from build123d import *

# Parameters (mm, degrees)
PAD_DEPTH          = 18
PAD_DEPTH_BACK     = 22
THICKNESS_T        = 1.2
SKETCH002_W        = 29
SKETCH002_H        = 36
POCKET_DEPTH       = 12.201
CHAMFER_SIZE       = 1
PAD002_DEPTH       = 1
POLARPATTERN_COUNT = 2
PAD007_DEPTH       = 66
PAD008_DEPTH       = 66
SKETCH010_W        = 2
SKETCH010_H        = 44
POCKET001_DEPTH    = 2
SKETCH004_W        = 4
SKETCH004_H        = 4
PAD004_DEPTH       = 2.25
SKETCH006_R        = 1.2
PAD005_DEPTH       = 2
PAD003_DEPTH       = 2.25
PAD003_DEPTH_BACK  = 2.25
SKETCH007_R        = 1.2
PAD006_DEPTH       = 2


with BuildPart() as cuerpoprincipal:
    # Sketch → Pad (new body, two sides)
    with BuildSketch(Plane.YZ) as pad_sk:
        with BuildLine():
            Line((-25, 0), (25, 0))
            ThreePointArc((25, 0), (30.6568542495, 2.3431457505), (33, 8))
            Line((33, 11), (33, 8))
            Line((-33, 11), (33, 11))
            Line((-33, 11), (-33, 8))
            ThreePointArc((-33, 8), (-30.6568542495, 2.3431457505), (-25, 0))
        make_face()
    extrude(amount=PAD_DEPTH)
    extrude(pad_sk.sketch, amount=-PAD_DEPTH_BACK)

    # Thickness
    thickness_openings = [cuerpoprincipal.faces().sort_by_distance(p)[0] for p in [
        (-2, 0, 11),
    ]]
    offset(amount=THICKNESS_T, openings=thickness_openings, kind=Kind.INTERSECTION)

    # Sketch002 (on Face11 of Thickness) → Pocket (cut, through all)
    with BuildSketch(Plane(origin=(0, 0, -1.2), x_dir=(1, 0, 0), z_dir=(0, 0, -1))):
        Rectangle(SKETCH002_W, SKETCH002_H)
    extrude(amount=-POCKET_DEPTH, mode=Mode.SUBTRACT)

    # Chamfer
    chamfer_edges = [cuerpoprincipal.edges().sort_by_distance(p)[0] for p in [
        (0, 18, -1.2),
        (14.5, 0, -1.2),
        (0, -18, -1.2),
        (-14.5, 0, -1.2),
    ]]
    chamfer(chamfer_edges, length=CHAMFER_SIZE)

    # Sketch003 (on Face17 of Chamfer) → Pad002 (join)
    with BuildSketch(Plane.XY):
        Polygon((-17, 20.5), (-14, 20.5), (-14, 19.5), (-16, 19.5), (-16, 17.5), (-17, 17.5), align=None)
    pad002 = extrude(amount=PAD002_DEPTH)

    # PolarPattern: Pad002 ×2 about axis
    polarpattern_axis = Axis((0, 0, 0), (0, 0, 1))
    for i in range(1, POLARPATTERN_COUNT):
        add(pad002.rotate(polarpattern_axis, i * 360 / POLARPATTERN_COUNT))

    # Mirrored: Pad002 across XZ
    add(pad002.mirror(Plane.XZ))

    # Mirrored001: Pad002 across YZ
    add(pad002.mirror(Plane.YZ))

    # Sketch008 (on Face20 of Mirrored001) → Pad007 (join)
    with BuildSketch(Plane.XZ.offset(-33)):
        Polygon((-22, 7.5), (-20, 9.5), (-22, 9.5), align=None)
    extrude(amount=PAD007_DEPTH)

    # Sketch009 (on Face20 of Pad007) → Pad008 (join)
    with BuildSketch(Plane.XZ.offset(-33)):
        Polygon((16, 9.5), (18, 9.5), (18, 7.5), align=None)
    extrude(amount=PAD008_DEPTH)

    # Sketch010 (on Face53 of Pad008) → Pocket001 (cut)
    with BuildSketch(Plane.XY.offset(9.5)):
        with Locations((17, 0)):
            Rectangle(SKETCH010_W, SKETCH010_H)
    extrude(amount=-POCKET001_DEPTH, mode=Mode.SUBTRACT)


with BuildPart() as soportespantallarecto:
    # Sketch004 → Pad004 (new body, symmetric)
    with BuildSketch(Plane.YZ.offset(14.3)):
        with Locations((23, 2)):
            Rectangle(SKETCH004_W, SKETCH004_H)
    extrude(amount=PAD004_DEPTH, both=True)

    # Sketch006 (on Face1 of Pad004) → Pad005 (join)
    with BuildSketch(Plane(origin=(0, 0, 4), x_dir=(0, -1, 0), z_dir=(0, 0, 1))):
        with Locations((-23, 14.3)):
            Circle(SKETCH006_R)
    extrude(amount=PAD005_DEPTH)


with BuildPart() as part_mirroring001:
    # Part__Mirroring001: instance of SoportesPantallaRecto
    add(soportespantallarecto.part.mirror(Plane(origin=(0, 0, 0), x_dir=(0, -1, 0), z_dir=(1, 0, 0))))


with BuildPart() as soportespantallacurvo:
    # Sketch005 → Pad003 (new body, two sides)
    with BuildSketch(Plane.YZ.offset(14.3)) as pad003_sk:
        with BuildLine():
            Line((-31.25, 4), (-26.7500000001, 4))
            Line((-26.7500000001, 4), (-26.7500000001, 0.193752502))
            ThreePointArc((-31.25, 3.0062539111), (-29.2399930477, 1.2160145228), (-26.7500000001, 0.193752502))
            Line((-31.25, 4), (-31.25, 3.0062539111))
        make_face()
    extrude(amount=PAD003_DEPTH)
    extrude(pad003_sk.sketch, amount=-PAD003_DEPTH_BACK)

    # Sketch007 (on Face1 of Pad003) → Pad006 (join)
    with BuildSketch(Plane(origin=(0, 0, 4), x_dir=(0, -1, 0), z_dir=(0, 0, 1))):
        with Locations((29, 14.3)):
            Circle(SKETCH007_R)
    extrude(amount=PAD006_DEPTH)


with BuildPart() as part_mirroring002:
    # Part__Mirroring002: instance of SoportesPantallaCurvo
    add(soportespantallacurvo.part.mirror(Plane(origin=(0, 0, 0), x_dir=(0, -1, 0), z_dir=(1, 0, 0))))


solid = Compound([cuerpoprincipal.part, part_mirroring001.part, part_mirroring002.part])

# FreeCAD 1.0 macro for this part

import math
import FreeCAD as App
import Part
import Sketcher

V = App.Vector
Q = App.Units.Quantity


def edges_at(feature, points):
    """Names of the edges that pass closest to the given points."""
    edges = feature.Shape.Edges
    near = lambda p: min(range(len(edges)), key=lambda i: edges[i].distToShape(Part.Vertex(*p))[0])
    return sorted({f"Edge{near(p) + 1}" for p in points})


def faces_at(feature, points):
    """Names of the faces that lie closest to the given points."""
    faces = feature.Shape.Faces
    near = lambda p: min(range(len(faces)), key=lambda i: faces[i].distToShape(Part.Vertex(*p))[0])
    return sorted({f"Face{near(p) + 1}" for p in points})

doc = App.newDocument("Part")
body = doc.addObject("PartDesign::Body", "Body")

# Sketch on YZ plane
sketch1 = body.newObject("Sketcher::SketchObject", "Sketch")
sketch1.AttachmentSupport = (doc.getObject("YZ_Plane"), [""])
sketch1.MapMode = "FlatFace"
sketch1.addGeometry([
    Part.LineSegment(V(-25, 0, 0), V(25, 0, 0)),  # 0
    Part.ArcOfCircle(Part.Circle(V(25, 8, 0), V(0, 0, 1), 8), math.radians(-90), math.radians(0)),  # 1
    Part.LineSegment(V(33, 8, 0), V(33, 11, 0)),  # 2
    Part.LineSegment(V(33, 11, 0), V(-33, 11, 0)),  # 3
    Part.LineSegment(V(-33, 11, 0), V(-33, 8, 0)),  # 4
    Part.ArcOfCircle(Part.Circle(V(-25, 8, 0), V(0, 0, 1), 8), math.radians(180), math.radians(270)),  # 5
], False)
sketch1.addConstraint([
    Sketcher.Constraint("Tangent", 0, 2, 1, 1),
    Sketcher.Constraint("Tangent", 1, 2, 2, 1),
    Sketcher.Constraint("Coincident", 2, 2, 3, 1),
    Sketcher.Constraint("Coincident", 3, 2, 4, 1),
    Sketcher.Constraint("Tangent", 4, 2, 5, 1),
    Sketcher.Constraint("Tangent", 5, 2, 0, 1),
    Sketcher.Constraint("Horizontal", 0),
    Sketcher.Constraint("Vertical", 2),
    Sketcher.Constraint("Horizontal", 3),
    Sketcher.Constraint("Vertical", 4),
    Sketcher.Constraint("Equal", 1, 5),
    Sketcher.Constraint("Symmetric", 0, 2, 5, 2, -1, 1),
    Sketcher.Constraint("Radius", 1, Q("8 mm")),
    Sketcher.Constraint("DistanceX", 0, 1, 0, 2, Q("50 mm")),
    Sketcher.Constraint("DistanceY", 2, 1, 2, 2, Q("3 mm")),
])
pad1 = body.newObject("PartDesign::Pad", "Pad")
pad1.Profile = sketch1
pad1.Type = "TwoLengths"
pad1.Length = 18
pad1.Length2 = 22
doc.recompute()

thickness = body.newObject("PartDesign::Thickness", "Thickness")
thickness.Base = (pad1, faces_at(pad1, [(-2, 0, 11)]))
thickness.Value = 1.2
thickness.Reversed = False
thickness.Join = "Intersection"

# Sketch on XY plane
sketch2 = body.newObject("Sketcher::SketchObject", "Sketch001")
sketch2.AttachmentSupport = (doc.getObject("XY_Plane"), [""])
sketch2.MapMode = "FlatFace"
sketch2.AttachmentOffset = App.Placement(V(0, 0, -1.2), App.Rotation())
sketch2.addGeometry([
    Part.LineSegment(V(-14, -18, 0), V(-14, 18, 0)),
    Part.LineSegment(V(-14, 18, 0), V(14, 18, 0)),
    Part.LineSegment(V(14, 18, 0), V(14, -18, 0)),
    Part.LineSegment(V(14, -18, 0), V(-14, -18, 0)),
], False)
sketch2.addConstraint([
    Sketcher.Constraint("Coincident", 0, 2, 1, 1),
    Sketcher.Constraint("Coincident", 1, 2, 2, 1),
    Sketcher.Constraint("Coincident", 2, 2, 3, 1),
    Sketcher.Constraint("Coincident", 3, 2, 0, 1),
    Sketcher.Constraint("Vertical", 0),
    Sketcher.Constraint("Horizontal", 1),
    Sketcher.Constraint("Vertical", 2),
    Sketcher.Constraint("Horizontal", 3),
    Sketcher.Constraint("Symmetric", 0, 2, 2, 2, -1, 1),
    Sketcher.Constraint("DistanceX", 1, 1, 1, 2, Q("29 mm")),
    Sketcher.Constraint("DistanceY", 0, 1, 0, 2, Q("36 mm")),
])
pocket1 = body.newObject("PartDesign::Pocket", "Pocket")
pocket1.Profile = sketch2
pocket1.Type = "ThroughAll"
pocket1.Reversed = True
doc.recompute()

chamfer = body.newObject("PartDesign::Chamfer", "Chamfer")
chamfer.Base = (pocket1, edges_at(pocket1, [
    (0, 18, -1.2),
    (14.5, 0, -1.2),
    (0, -18, -1.2),
    (-14.5, 0, -1.2),
]))
chamfer.Size = 1

# Sketch on XY plane
sketch3 = body.newObject("Sketcher::SketchObject", "Sketch002")
sketch3.AttachmentSupport = (doc.getObject("XY_Plane"), [""])
sketch3.MapMode = "FlatFace"
sketch3.addGeometry([
    Part.LineSegment(V(-14, 20.5, 0), V(-17, 20.5, 0)),  # 0
    Part.LineSegment(V(-17, 20.5, 0), V(-17, 17.5, 0)),  # 1
    Part.LineSegment(V(-17, 17.5, 0), V(-16, 17.5, 0)),  # 2
    Part.LineSegment(V(-16, 17.5, 0), V(-16, 19.5, 0)),  # 3
    Part.LineSegment(V(-16, 19.5, 0), V(-14, 19.5, 0)),  # 4
    Part.LineSegment(V(-14, 19.5, 0), V(-14, 20.5, 0)),  # 5
], False)
sketch3.addConstraint([
    Sketcher.Constraint("Coincident", 0, 2, 1, 1),
    Sketcher.Constraint("Coincident", 1, 2, 2, 1),
    Sketcher.Constraint("Coincident", 2, 2, 3, 1),
    Sketcher.Constraint("Coincident", 3, 2, 4, 1),
    Sketcher.Constraint("Coincident", 4, 2, 5, 1),
    Sketcher.Constraint("Coincident", 5, 2, 0, 1),
    Sketcher.Constraint("Horizontal", 0),
    Sketcher.Constraint("Vertical", 1),
    Sketcher.Constraint("Horizontal", 2),
    Sketcher.Constraint("Vertical", 3),
    Sketcher.Constraint("Horizontal", 4),
    Sketcher.Constraint("Vertical", 5),
    Sketcher.Constraint("Equal", 0, 1),
    Sketcher.Constraint("Equal", 4, 3),
    Sketcher.Constraint("DistanceX", 0, 2, 0, 1, Q("3 mm")),
    Sketcher.Constraint("DistanceX", 2, 1, 2, 2, Q("1 mm")),
    Sketcher.Constraint("DistanceX", 0, 2, -1, 1, Q("17 mm")),
    Sketcher.Constraint("DistanceY", -1, 1, 0, 2, Q("20.5 mm")),
])
pad2 = body.newObject("PartDesign::Pad", "Pad001")
pad2.Profile = sketch3
pad2.Length = 1
doc.recompute()

polarpattern = body.newObject("PartDesign::PolarPattern", "PolarPattern")
polarpattern.Originals = [pad2]
polarpattern.Axis = (doc.getObject("Z_Axis"), [""])
polarpattern.Angle = 360
polarpattern.Occurrences = 2
body.Tip = polarpattern
doc.recompute()

mirrored = body.newObject("PartDesign::Mirrored", "Mirrored")
mirrored.Originals = [pad2]
mirrored.MirrorPlane = (doc.getObject("XZ_Plane"), [""])
body.Tip = mirrored
doc.recompute()

mirrored2 = body.newObject("PartDesign::Mirrored", "Mirrored001")
mirrored2.Originals = [pad2]
mirrored2.MirrorPlane = (doc.getObject("YZ_Plane"), [""])
body.Tip = mirrored2

# Sketch on XZ plane
sketch4 = body.newObject("Sketcher::SketchObject", "Sketch003")
sketch4.AttachmentSupport = (doc.getObject("XZ_Plane"), [""])
sketch4.MapMode = "FlatFace"
sketch4.AttachmentOffset = App.Placement(V(0, 0, -33), App.Rotation())
sketch4.addGeometry([
    Part.LineSegment(V(-22, 7.5, 0), V(-20, 9.5, 0)),
    Part.LineSegment(V(-20, 9.5, 0), V(-22, 9.5, 0)),
    Part.LineSegment(V(-22, 9.5, 0), V(-22, 7.5, 0)),
], False)
sketch4.addConstraint([
    Sketcher.Constraint("Coincident", 0, 2, 1, 1),
    Sketcher.Constraint("Coincident", 1, 2, 2, 1),
    Sketcher.Constraint("Coincident", 2, 2, 0, 1),
    Sketcher.Constraint("Horizontal", 1),
    Sketcher.Constraint("Vertical", 2),
    Sketcher.Constraint("Equal", 1, 2),
    Sketcher.Constraint("DistanceX", 1, 2, 1, 1, Q("2 mm")),
    Sketcher.Constraint("DistanceX", 0, 2, -1, 1, Q("20 mm")),
    Sketcher.Constraint("DistanceY", -1, 1, 0, 2, Q("9.5 mm")),
])
pad3 = body.newObject("PartDesign::Pad", "Pad002")
pad3.Profile = sketch4
pad3.Length = 66

# Sketch on XZ plane
sketch5 = body.newObject("Sketcher::SketchObject", "Sketch004")
sketch5.AttachmentSupport = (doc.getObject("XZ_Plane"), [""])
sketch5.MapMode = "FlatFace"
sketch5.AttachmentOffset = App.Placement(V(0, 0, -33), App.Rotation())
sketch5.addGeometry([
    Part.LineSegment(V(18, 9.5, 0), V(16, 9.5, 0)),
    Part.LineSegment(V(16, 9.5, 0), V(18, 7.5, 0)),
    Part.LineSegment(V(18, 7.5, 0), V(18, 9.5, 0)),
], False)
sketch5.addConstraint([
    Sketcher.Constraint("Coincident", 0, 2, 1, 1),
    Sketcher.Constraint("Coincident", 1, 2, 2, 1),
    Sketcher.Constraint("Coincident", 2, 2, 0, 1),
    Sketcher.Constraint("Horizontal", 0),
    Sketcher.Constraint("Vertical", 2),
    Sketcher.Constraint("Equal", 0, 2),
    Sketcher.Constraint("DistanceX", 0, 2, 0, 1, Q("2 mm")),
    Sketcher.Constraint("DistanceX", -1, 1, 0, 2, Q("16 mm")),
    Sketcher.Constraint("DistanceY", -1, 1, 0, 2, Q("9.5 mm")),
])
pad4 = body.newObject("PartDesign::Pad", "Pad003")
pad4.Profile = sketch5
pad4.Length = 66

# Sketch on XY plane
sketch6 = body.newObject("Sketcher::SketchObject", "Sketch005")
sketch6.AttachmentSupport = (doc.getObject("XY_Plane"), [""])
sketch6.MapMode = "FlatFace"
sketch6.AttachmentOffset = App.Placement(V(0, 0, 9.5), App.Rotation())
sketch6.addGeometry([
    Part.LineSegment(V(16, 22, 0), V(16, -22, 0)),
    Part.LineSegment(V(16, -22, 0), V(18, -22, 0)),
    Part.LineSegment(V(18, -22, 0), V(18, 22, 0)),
    Part.LineSegment(V(18, 22, 0), V(16, 22, 0)),
], False)
sketch6.addConstraint([
    Sketcher.Constraint("Coincident", 0, 2, 1, 1),
    Sketcher.Constraint("Coincident", 1, 2, 2, 1),
    Sketcher.Constraint("Coincident", 2, 2, 3, 1),
    Sketcher.Constraint("Coincident", 3, 2, 0, 1),
    Sketcher.Constraint("Vertical", 0),
    Sketcher.Constraint("Horizontal", 1),
    Sketcher.Constraint("Vertical", 2),
    Sketcher.Constraint("Horizontal", 3),
    Sketcher.Constraint("DistanceX", 1, 1, 1, 2, Q("2 mm")),
    Sketcher.Constraint("DistanceY", 0, 2, 0, 1, Q("44 mm")),
    Sketcher.Constraint("DistanceX", -1, 1, 0, 2, Q("16 mm")),
    Sketcher.Constraint("DistanceY", 0, 2, -1, 1, Q("22 mm")),
])
pocket2 = body.newObject("PartDesign::Pocket", "Pocket001")
pocket2.Profile = sketch6
pocket2.Length = 2
body2 = doc.addObject("PartDesign::Body", "Body001")

# Sketch on YZ plane
sketch7 = body2.newObject("Sketcher::SketchObject", "Sketch006")
sketch7.AttachmentSupport = (doc.getObject("YZ_Plane001"), [""])
sketch7.MapMode = "FlatFace"
sketch7.AttachmentOffset = App.Placement(V(0, 0, 14.3), App.Rotation())
sketch7.addGeometry([
    Part.LineSegment(V(21, 4, 0), V(21, 0, 0)),
    Part.LineSegment(V(21, 0, 0), V(25, 0, 0)),
    Part.LineSegment(V(25, 0, 0), V(25, 4, 0)),
    Part.LineSegment(V(25, 4, 0), V(21, 4, 0)),
], False)
sketch7.addConstraint([
    Sketcher.Constraint("Coincident", 0, 2, 1, 1),
    Sketcher.Constraint("Coincident", 1, 2, 2, 1),
    Sketcher.Constraint("Coincident", 2, 2, 3, 1),
    Sketcher.Constraint("Coincident", 3, 2, 0, 1),
    Sketcher.Constraint("Vertical", 0),
    Sketcher.Constraint("Horizontal", 1),
    Sketcher.Constraint("Vertical", 2),
    Sketcher.Constraint("Horizontal", 3),
    Sketcher.Constraint("PointOnObject", 0, 2, -1),
    Sketcher.Constraint("Equal", 3, 0),
    Sketcher.Constraint("DistanceX", 1, 1, 1, 2, Q("4 mm")),
    Sketcher.Constraint("DistanceX", -1, 1, 0, 2, Q("21 mm")),
])
pad5 = body2.newObject("PartDesign::Pad", "Pad004")
pad5.Profile = sketch7
pad5.Length = 4.5
pad5.Midplane = True

# Sketch on XY plane
sketch8 = body2.newObject("Sketcher::SketchObject", "Sketch007")
sketch8.AttachmentSupport = (doc.getObject("XY_Plane001"), [""])
sketch8.MapMode = "FlatFace"
sketch8.AttachmentOffset = App.Placement(V(0, 0, 4), App.Rotation())
sketch8.addGeometry(Part.Circle(V(14.3, 23, 0), V(0, 0, 1), 1.2), False)
sketch8.addConstraint([
    Sketcher.Constraint("Diameter", 0, Q("2.4 mm")),
    Sketcher.Constraint("DistanceY", -1, 1, 0, 3, Q("23 mm")),
    Sketcher.Constraint("DistanceX", -1, 1, 0, 3, Q("14.3 mm")),
])
pad6 = body2.newObject("PartDesign::Pad", "Pad005")
pad6.Profile = sketch8
pad6.Length = 2
body3 = doc.addObject("PartDesign::Body", "Body002")
doc.recompute()

mirroring = doc.addObject("Part::Mirroring", "Mirroring")
mirroring.Source = body2
mirroring.Base = V(0, 0, 0)
mirroring.Normal = V(1, 0, 0)
body3.BaseFeature = mirroring
doc.recompute()
body4 = doc.addObject("PartDesign::Body", "Body003")

# Sketch on YZ plane
sketch9 = body4.newObject("Sketcher::SketchObject", "Sketch008")
sketch9.AttachmentSupport = (doc.getObject("YZ_Plane003"), [""])
sketch9.MapMode = "FlatFace"
sketch9.AttachmentOffset = App.Placement(V(0, 0, 14.3), App.Rotation())
sketch9.addGeometry([
    Part.LineSegment(V(-26.8, 4, 0), V(-31.2, 4, 0)),
    Part.LineSegment(V(-31.2, 4, 0), V(-31.2, 3, 0)),
    Part.ArcOfCircle(Part.Circle(V(-25, 8, 0), V(0, 0, 1), 8), math.radians(-141), math.radians(-103)),
    Part.LineSegment(V(-26.8, 0.2, 0), V(-26.8, 4, 0)),
], False)
sketch9.addConstraint([
    Sketcher.Constraint("Coincident", 0, 2, 1, 1),
    Sketcher.Constraint("Coincident", 1, 2, 2, 1),
    Sketcher.Constraint("Coincident", 2, 2, 3, 1),
    Sketcher.Constraint("Coincident", 3, 2, 0, 1),
    Sketcher.Constraint("Horizontal", 0),
    Sketcher.Constraint("Vertical", 1),
    Sketcher.Constraint("Vertical", 3),
    Sketcher.Constraint("Radius", 2, Q("8 mm")),
    Sketcher.Constraint("DistanceX", 0, 2, 0, 1, Q("4.5 mm")),
    Sketcher.Constraint("DistanceX", 2, 3, -1, 1, Q("25 mm")),
    Sketcher.Constraint("DistanceY", -1, 1, 2, 3, Q("8 mm")),
    Sketcher.Constraint("DistanceY", -1, 1, 0, 2, Q("4 mm")),
    Sketcher.Constraint("DistanceX", 0, 2, -1, 1, Q("31.25 mm")),
])
pad7 = body4.newObject("PartDesign::Pad", "Pad006")
pad7.Profile = sketch9
pad7.Type = "TwoLengths"
pad7.Length = 2.25
pad7.Length2 = 2.25

# Sketch on XY plane
sketch10 = body4.newObject("Sketcher::SketchObject", "Sketch009")
sketch10.AttachmentSupport = (doc.getObject("XY_Plane003"), [""])
sketch10.MapMode = "FlatFace"
sketch10.AttachmentOffset = App.Placement(V(0, 0, 4), App.Rotation())
sketch10.addGeometry(Part.Circle(V(14.3, -29, 0), V(0, 0, 1), 1.2), False)
sketch10.addConstraint([
    Sketcher.Constraint("Diameter", 0, Q("2.4 mm")),
    Sketcher.Constraint("DistanceY", 0, 3, -1, 1, Q("29 mm")),
    Sketcher.Constraint("DistanceX", -1, 1, 0, 3, Q("14.3 mm")),
])
pad8 = body4.newObject("PartDesign::Pad", "Pad007")
pad8.Profile = sketch10
pad8.Length = 2
body5 = doc.addObject("PartDesign::Body", "Body004")
doc.recompute()

mirroring2 = doc.addObject("Part::Mirroring", "Mirroring001")
mirroring2.Source = body4
mirroring2.Base = V(0, 0, 0)
mirroring2.Normal = V(1, 0, 0)
body5.BaseFeature = mirroring2
doc.recompute()
body2.Visibility = False
body4.Visibility = False
mirroring.Visibility = False
mirroring2.Visibility = False

doc.recompute()
